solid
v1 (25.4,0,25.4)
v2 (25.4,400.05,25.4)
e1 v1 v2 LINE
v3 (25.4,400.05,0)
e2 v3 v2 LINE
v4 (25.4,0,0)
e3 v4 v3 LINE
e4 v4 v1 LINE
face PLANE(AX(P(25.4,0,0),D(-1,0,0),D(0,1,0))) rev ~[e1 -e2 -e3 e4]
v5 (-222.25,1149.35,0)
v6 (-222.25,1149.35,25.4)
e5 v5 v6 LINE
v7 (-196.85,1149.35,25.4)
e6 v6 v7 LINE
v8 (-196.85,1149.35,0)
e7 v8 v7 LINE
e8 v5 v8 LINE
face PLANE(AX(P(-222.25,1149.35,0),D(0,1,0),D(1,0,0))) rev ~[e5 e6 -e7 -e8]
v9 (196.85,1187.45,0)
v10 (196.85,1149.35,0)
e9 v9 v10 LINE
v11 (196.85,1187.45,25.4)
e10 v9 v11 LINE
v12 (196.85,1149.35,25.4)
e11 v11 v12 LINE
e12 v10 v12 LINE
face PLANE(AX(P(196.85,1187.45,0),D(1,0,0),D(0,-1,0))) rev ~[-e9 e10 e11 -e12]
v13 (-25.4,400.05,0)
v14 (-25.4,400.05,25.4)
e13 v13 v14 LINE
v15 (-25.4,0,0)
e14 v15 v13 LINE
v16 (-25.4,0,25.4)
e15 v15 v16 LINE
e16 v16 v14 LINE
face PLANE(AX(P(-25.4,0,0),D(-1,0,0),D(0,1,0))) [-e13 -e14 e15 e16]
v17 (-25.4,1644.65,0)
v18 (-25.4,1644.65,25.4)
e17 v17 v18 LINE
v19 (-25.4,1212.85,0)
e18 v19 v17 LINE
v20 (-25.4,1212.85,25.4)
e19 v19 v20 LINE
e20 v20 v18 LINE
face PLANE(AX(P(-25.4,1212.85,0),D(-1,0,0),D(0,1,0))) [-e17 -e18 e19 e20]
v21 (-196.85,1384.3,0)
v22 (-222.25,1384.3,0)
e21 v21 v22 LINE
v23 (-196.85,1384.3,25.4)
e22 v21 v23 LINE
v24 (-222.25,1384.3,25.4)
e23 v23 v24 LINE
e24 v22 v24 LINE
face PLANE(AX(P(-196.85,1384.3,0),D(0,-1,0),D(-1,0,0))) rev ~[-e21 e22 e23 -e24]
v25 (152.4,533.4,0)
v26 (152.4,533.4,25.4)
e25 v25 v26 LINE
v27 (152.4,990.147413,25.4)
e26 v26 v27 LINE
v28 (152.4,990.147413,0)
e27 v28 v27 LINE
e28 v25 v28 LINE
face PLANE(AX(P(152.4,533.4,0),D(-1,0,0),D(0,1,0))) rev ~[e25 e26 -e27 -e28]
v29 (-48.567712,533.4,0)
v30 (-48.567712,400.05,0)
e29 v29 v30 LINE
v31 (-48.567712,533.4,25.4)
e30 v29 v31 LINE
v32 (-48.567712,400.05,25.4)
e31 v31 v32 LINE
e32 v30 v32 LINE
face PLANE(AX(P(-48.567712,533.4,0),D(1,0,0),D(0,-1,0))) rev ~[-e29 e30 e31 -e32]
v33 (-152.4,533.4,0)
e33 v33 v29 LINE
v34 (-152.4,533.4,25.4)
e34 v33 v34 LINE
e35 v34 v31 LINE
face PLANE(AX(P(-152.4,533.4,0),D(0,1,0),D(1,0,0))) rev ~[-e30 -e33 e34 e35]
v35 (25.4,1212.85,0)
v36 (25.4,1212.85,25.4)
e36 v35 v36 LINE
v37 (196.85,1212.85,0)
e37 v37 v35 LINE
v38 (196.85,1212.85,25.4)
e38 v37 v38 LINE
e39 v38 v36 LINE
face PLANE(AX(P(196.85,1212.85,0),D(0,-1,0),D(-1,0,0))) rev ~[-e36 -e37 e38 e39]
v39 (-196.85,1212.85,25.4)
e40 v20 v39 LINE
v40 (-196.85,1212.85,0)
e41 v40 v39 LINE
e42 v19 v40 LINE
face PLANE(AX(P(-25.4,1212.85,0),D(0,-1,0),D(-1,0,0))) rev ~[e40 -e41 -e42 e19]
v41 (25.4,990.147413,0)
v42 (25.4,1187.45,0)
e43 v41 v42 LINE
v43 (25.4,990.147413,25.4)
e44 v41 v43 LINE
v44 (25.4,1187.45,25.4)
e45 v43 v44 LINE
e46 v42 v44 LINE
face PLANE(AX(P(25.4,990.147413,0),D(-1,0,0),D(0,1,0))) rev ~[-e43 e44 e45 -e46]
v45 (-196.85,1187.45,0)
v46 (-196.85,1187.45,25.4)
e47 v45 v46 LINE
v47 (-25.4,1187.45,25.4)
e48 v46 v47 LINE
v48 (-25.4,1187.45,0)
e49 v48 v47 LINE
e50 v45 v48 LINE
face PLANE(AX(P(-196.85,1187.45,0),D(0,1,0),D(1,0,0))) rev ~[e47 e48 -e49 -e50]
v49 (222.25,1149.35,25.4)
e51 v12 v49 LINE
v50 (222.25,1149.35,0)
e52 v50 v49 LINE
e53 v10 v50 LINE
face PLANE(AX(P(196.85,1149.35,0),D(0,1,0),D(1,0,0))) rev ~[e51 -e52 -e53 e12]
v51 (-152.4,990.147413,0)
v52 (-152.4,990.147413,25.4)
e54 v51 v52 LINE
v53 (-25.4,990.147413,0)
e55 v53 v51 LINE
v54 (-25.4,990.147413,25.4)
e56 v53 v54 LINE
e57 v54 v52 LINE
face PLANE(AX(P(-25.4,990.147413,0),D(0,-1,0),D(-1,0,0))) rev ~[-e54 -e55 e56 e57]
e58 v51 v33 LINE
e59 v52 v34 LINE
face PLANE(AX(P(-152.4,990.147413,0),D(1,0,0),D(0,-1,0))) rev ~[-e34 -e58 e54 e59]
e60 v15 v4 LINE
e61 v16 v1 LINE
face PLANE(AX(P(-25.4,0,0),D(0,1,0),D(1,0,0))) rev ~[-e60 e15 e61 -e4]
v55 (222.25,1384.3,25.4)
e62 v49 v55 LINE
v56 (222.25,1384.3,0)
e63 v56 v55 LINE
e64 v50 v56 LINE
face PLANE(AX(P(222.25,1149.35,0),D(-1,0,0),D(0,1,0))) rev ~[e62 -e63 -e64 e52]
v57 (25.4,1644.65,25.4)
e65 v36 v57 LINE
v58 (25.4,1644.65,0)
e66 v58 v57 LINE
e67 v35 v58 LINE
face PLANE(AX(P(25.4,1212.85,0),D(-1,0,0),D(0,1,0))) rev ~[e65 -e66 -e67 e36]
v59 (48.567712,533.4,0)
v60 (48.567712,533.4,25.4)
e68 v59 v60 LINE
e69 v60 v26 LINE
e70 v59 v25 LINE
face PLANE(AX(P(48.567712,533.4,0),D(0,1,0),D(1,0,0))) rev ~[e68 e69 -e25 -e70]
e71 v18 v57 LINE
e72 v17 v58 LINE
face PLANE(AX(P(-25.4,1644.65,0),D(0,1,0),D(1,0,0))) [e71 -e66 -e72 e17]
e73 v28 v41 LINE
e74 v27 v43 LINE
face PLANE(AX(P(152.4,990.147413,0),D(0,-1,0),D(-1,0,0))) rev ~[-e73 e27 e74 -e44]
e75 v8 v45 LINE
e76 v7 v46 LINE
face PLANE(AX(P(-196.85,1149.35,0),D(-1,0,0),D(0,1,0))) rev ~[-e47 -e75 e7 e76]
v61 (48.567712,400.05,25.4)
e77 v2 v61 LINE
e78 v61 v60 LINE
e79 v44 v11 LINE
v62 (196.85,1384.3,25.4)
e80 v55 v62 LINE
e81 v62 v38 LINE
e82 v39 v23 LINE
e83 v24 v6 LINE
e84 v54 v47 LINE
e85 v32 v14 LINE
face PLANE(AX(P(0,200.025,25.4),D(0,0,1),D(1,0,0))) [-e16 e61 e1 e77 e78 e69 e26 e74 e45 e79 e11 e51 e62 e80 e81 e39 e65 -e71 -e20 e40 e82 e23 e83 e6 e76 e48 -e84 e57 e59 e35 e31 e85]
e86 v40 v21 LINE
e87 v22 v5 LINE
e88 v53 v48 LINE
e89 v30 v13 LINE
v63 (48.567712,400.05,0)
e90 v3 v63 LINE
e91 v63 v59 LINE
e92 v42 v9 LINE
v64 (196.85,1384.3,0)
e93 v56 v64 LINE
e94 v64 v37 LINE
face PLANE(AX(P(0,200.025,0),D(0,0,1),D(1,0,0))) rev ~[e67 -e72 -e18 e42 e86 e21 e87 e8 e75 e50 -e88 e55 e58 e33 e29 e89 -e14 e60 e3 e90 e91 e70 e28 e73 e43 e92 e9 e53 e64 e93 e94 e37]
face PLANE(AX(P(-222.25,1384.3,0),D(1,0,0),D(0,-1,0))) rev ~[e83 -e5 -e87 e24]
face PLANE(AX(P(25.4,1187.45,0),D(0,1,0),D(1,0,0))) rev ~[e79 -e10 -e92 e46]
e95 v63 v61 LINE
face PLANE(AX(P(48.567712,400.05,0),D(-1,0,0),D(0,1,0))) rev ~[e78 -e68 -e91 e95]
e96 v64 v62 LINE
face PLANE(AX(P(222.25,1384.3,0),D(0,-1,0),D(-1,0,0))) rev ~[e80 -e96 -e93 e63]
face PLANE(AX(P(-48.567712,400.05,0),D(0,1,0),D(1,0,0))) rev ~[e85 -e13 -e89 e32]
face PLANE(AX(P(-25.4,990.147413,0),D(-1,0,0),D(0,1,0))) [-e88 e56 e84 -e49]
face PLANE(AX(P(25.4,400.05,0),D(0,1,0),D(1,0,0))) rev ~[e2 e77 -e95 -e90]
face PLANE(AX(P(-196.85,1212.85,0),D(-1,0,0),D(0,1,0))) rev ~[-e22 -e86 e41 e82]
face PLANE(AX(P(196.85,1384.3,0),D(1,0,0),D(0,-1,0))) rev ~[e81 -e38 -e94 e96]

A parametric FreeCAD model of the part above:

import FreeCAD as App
import Part
import Sketcher
Q = App.Units.Quantity

doc = App.newDocument("Part")
body = doc.addObject("PartDesign::Body", "Body")

# Sketch on XY plane
sketch1 = body.newObject("Sketcher::SketchObject", "Sketch")
sketch1.AttachmentSupport = (doc.getObject("XY_Plane"), [""])
sketch1.MapMode = "FlatFace"
sketch1.addGeometry([
    Part.LineSegment(App.Vector(48.567712, 400.05, 0), App.Vector(48.567712, 533.4, 0)),  # 0
    Part.LineSegment(App.Vector(48.567712, 533.4, 0), App.Vector(152.4, 533.4, 0)),  # 1
    Part.LineSegment(App.Vector(152.4, 533.4, 0), App.Vector(152.4, 990.147413, 0)),  # 2
    Part.LineSegment(App.Vector(152.4, 990.147413, 0), App.Vector(25.4, 990.147413, 0)),  # 3
    Part.LineSegment(App.Vector(25.4, 990.147413, 0), App.Vector(25.4, 1187.45, 0)),  # 4
    Part.LineSegment(App.Vector(25.4, 1187.45, 0), App.Vector(196.85, 1187.45, 0)),  # 5
    Part.LineSegment(App.Vector(196.85, 1187.45, 0), App.Vector(196.85, 1149.35, 0)),  # 6
    Part.LineSegment(App.Vector(196.85, 1149.35, 0), App.Vector(222.25, 1149.35, 0)),  # 7
    Part.LineSegment(App.Vector(222.25, 1149.35, 0), App.Vector(222.25, 1384.3, 0)),  # 8
    Part.LineSegment(App.Vector(222.25, 1384.3, 0), App.Vector(196.85, 1384.3, 0)),  # 9
    Part.LineSegment(App.Vector(196.85, 1384.3, 0), App.Vector(196.85, 1212.85, 0)),  # 10
    Part.LineSegment(App.Vector(196.85, 1212.85, 0), App.Vector(25.4, 1212.85, 0)),  # 11
    Part.LineSegment(App.Vector(25.4, 1212.85, 0), App.Vector(25.4, 1644.65, 0)),  # 12
    Part.LineSegment(App.Vector(25.4, 1644.65, 0), App.Vector(-25.4, 1644.65, 0)),  # 13
    Part.LineSegment(App.Vector(-25.4, 1644.65, 0), App.Vector(-25.4, 1212.85, 0)),  # 14
    Part.LineSegment(App.Vector(-25.4, 1212.85, 0), App.Vector(-196.85, 1212.85, 0)),  # 15
    Part.LineSegment(App.Vector(-196.85, 1212.85, 0), App.Vector(-196.85, 1384.3, 0)),  # 16
    Part.LineSegment(App.Vector(-196.85, 1384.3, 0), App.Vector(-222.25, 1384.3, 0)),  # 17
    Part.LineSegment(App.Vector(-222.25, 1384.3, 0), App.Vector(-222.25, 1149.35, 0)),  # 18
    Part.LineSegment(App.Vector(-222.25, 1149.35, 0), App.Vector(-196.85, 1149.35, 0)),  # 19
    Part.LineSegment(App.Vector(-196.85, 1149.35, 0), App.Vector(-196.85, 1187.45, 0)),  # 20
    Part.LineSegment(App.Vector(-196.85, 1187.45, 0), App.Vector(-25.4, 1187.45, 0)),  # 21
    Part.LineSegment(App.Vector(-25.4, 1187.45, 0), App.Vector(-25.4, 990.147413, 0)),  # 22
    Part.LineSegment(App.Vector(-25.4, 990.147413, 0), App.Vector(-152.4, 990.147413, 0)),  # 23
    Part.LineSegment(App.Vector(-152.4, 990.147413, 0), App.Vector(-152.4, 533.4, 0)),  # 24
    Part.LineSegment(App.Vector(-152.4, 533.4, 0), App.Vector(-48.567712, 533.4, 0)),  # 25
    Part.LineSegment(App.Vector(-48.567712, 533.4, 0), App.Vector(-48.567712, 400.05, 0)),  # 26
    Part.LineSegment(App.Vector(-48.567712, 400.05, 0), App.Vector(-25.4, 400.05, 0)),  # 27
    Part.LineSegment(App.Vector(-25.4, 400.05, 0), App.Vector(-25.4, 0, 0)),  # 28
    Part.LineSegment(App.Vector(-25.4, 0, 0), App.Vector(25.4, 0, 0)),  # 29
    Part.LineSegment(App.Vector(25.4, 0, 0), App.Vector(25.4, 400.05, 0)),  # 30
    Part.LineSegment(App.Vector(25.4, 400.05, 0), App.Vector(48.567712, 400.05, 0)),  # 31
], False)
sketch1.addConstraint([
    Sketcher.Constraint("Coincident", 0, 2, 1, 1),
    Sketcher.Constraint("Coincident", 1, 2, 2, 1),
    Sketcher.Constraint("Coincident", 2, 2, 3, 1),
    Sketcher.Constraint("Coincident", 3, 2, 4, 1),
    Sketcher.Constraint("Coincident", 4, 2, 5, 1),
    Sketcher.Constraint("Coincident", 5, 2, 6, 1),
    Sketcher.Constraint("Coincident", 6, 2, 7, 1),
    Sketcher.Constraint("Coincident", 7, 2, 8, 1),
    Sketcher.Constraint("Coincident", 8, 2, 9, 1),
    Sketcher.Constraint("Coincident", 9, 2, 10, 1),
    Sketcher.Constraint("Coincident", 10, 2, 11, 1),
    Sketcher.Constraint("Coincident", 11, 2, 12, 1),
    Sketcher.Constraint("Coincident", 12, 2, 13, 1),
    Sketcher.Constraint("Coincident", 13, 2, 14, 1),
    Sketcher.Constraint("Coincident", 14, 2, 15, 1),
    Sketcher.Constraint("Coincident", 15, 2, 16, 1),
    Sketcher.Constraint("Coincident", 16, 2, 17, 1),
    Sketcher.Constraint("Coincident", 17, 2, 18, 1),
    Sketcher.Constraint("Coincident", 18, 2, 19, 1),
    Sketcher.Constraint("Coincident", 19, 2, 20, 1),
    Sketcher.Constraint("Coincident", 20, 2, 21, 1),
    Sketcher.Constraint("Coincident", 21, 2, 22, 1),
    Sketcher.Constraint("Coincident", 22, 2, 23, 1),
    Sketcher.Constraint("Coincident", 23, 2, 24, 1),
    Sketcher.Constraint("Coincident", 24, 2, 25, 1),
    Sketcher.Constraint("Coincident", 25, 2, 26, 1),
    Sketcher.Constraint("Coincident", 26, 2, 27, 1),
    Sketcher.Constraint("Coincident", 27, 2, 28, 1),
    Sketcher.Constraint("Coincident", 28, 2, 29, 1),
    Sketcher.Constraint("Coincident", 29, 2, 30, 1),
    Sketcher.Constraint("Coincident", 30, 2, 31, 1),
    Sketcher.Constraint("Coincident", 31, 2, 0, 1),
    Sketcher.Constraint("Vertical", 0),
    Sketcher.Constraint("Horizontal", 1),
    Sketcher.Constraint("Vertical", 2),
    Sketcher.Constraint("Horizontal", 3),
    Sketcher.Constraint("Vertical", 4),
    Sketcher.Constraint("Horizontal", 5),
    Sketcher.Constraint("Vertical", 6),
    Sketcher.Constraint("Horizontal", 7),
    Sketcher.Constraint("Vertical", 8),
    Sketcher.Constraint("Horizontal", 9),
    Sketcher.Constraint("Vertical", 10),
    Sketcher.Constraint("Horizontal", 11),
    Sketcher.Constraint("Vertical", 12),
    Sketcher.Constraint("Horizontal", 13),
    Sketcher.Constraint("Vertical", 14),
    Sketcher.Constraint("Horizontal", 15),
    Sketcher.Constraint("Vertical", 16),
    Sketcher.Constraint("Horizontal", 17),
    Sketcher.Constraint("Vertical", 18),
    Sketcher.Constraint("Horizontal", 19),
    Sketcher.Constraint("Vertical", 20),
    Sketcher.Constraint("Horizontal", 21),
    Sketcher.Constraint("Vertical", 22),
    Sketcher.Constraint("Horizontal", 23),
    Sketcher.Constraint("Vertical", 24),
    Sketcher.Constraint("Horizontal", 25),
    Sketcher.Constraint("Vertical", 26),
    Sketcher.Constraint("Horizontal", 27),
    Sketcher.Constraint("Vertical", 28),
    Sketcher.Constraint("Horizontal", 29),
    Sketcher.Constraint("Vertical", 30),
    Sketcher.Constraint("Horizontal", 31),
    Sketcher.Constraint("Symmetric", 28, 2, 29, 2, -1, 1),
    Sketcher.Constraint("Symmetric", 11, 2, 14, 2, -2),
    Sketcher.Constraint("Symmetric", 9, 2, 16, 2, -2),
    Sketcher.Constraint("Symmetric", 7, 2, 18, 2, -2),
    Sketcher.Constraint("Symmetric", 5, 2, 20, 2, -2),
    Sketcher.Constraint("Symmetric", 3, 2, 22, 2, -2),
    Sketcher.Constraint("Symmetric", 1, 2, 24, 2, -2),
    Sketcher.Constraint("Symmetric", 26, 2, 31, 2, -2),
    Sketcher.Constraint("Vertical", 6, 2, 9, 2),
    Sketcher.Constraint("Vertical", 4, 2, 11, 2),
    Sketcher.Constraint("Vertical", 22, 2, 27, 2),
    Sketcher.Constraint("Equal", 21, 10),
    Sketcher.Constraint("DistanceX", 3, 2, 3, 1, Q("5 in")),
    Sketcher.Constraint("DistanceX", 7, 1, 7, 2, Q("1 in")),
    Sketcher.Constraint("DistanceX", 13, 2, 13, 1, Q("2 in")),
    Sketcher.Constraint("DistanceY", 12, 1, 12, 2, Q("17 in")),
    Sketcher.Constraint("DistanceY", 6, 2, 6, 1, Q("1.5 in")),
    Sketcher.Constraint("DistanceY", -1, 1, 0, 2, Q("21 in")),
    Sketcher.Constraint("DistanceY", 5, 2, 10, 2, Q("1 in")),
    Sketcher.Constraint("DistanceX", 5, 1, 5, 2, Q("6.75 in")),
    Sketcher.Constraint("DistanceY", 0, 1, 0, 2, Q("5.25 in")),
    Sketcher.Constraint("DistanceY", -1, 1, 8, 2, Q("54.5 in")),
    Sketcher.Constraint("DistanceX", 1, 1, 1, 2, Q("103.832288 mm")),
    Sketcher.Constraint("DistanceY", 2, 1, 2, 2, Q("456.747413 mm")),
])
pad1 = body.newObject("PartDesign::Pad", "Pad")
pad1.Profile = sketch1
pad1.Length = Q("1 in")

doc.recompute()
